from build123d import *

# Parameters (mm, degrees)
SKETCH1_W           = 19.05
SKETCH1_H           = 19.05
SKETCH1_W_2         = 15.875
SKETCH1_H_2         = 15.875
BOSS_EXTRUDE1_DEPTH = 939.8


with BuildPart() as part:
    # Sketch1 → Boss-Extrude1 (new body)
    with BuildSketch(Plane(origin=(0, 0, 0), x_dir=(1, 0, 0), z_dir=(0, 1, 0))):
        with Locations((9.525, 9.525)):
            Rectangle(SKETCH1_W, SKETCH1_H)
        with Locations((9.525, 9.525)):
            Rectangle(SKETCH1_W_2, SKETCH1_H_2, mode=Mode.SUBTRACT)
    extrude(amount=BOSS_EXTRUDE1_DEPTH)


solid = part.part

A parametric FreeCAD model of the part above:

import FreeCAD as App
import Part
import Sketcher

V = App.Vector
Q = App.Units.Quantity


def add_polygon(sketch, points):
    """Adds a closed chain of lines whose ends are joined by coincident constraints."""
    first, n = sketch.GeometryCount, len(points)
    for a, b in zip(points, points[1:] + points[:1]):
        sketch.addGeometry(Part.LineSegment(App.Vector(*a, 0), App.Vector(*b, 0)), False)
    for i in range(n):
        sketch.addConstraint(Sketcher.Constraint("Coincident", first + i, 2, first + (i + 1) % n, 1))

doc = App.newDocument("Part")
body = doc.addObject("PartDesign::Body", "Body")

sketch1 = body.newObject("Sketcher::SketchObject", "Sketch")
sketch1.AttachmentSupport = (doc.getObject("XZ_Plane"), [""])
sketch1.MapMode = "FlatFace"
add_polygon(sketch1, [(0, -19), (0, 0), (19, 0), (19, -19)])
add_polygon(sketch1, [(17, -2), (2, -2), (2, -17), (17, -17)])
sketch1.addConstraint([
    Sketcher.Constraint("Vertical", 0),
    Sketcher.Constraint("Horizontal", 1),
    Sketcher.Constraint("Vertical", 2),
    Sketcher.Constraint("Horizontal", 3),
    Sketcher.Constraint("Horizontal", 4),
    Sketcher.Constraint("Vertical", 5),
    Sketcher.Constraint("Horizontal", 6),
    Sketcher.Constraint("Vertical", 7),
    Sketcher.Constraint("Coincident", 0, 2, -1, 1),
    Sketcher.Constraint("Equal", 3, 0),
    Sketcher.Constraint("Equal", 6, 5),
    Sketcher.Constraint("DistanceX", 1, 1, 1, 2, Q("0.75 in")),
    Sketcher.Constraint("DistanceX", 4, 2, 4, 1, Q("0.625 in")),
    Sketcher.Constraint("DistanceX", -1, 1, 4, 2, Q("0.0625 in")),
    Sketcher.Constraint("DistanceY", 4, 2, -1, 1, Q("0.0625 in")),
])
pad1 = body.newObject("PartDesign::Pad", "Pad")
pad1.Profile = sketch1
pad1.Length = Q("37 in")
pad1.Reversed = True

doc.recompute()
